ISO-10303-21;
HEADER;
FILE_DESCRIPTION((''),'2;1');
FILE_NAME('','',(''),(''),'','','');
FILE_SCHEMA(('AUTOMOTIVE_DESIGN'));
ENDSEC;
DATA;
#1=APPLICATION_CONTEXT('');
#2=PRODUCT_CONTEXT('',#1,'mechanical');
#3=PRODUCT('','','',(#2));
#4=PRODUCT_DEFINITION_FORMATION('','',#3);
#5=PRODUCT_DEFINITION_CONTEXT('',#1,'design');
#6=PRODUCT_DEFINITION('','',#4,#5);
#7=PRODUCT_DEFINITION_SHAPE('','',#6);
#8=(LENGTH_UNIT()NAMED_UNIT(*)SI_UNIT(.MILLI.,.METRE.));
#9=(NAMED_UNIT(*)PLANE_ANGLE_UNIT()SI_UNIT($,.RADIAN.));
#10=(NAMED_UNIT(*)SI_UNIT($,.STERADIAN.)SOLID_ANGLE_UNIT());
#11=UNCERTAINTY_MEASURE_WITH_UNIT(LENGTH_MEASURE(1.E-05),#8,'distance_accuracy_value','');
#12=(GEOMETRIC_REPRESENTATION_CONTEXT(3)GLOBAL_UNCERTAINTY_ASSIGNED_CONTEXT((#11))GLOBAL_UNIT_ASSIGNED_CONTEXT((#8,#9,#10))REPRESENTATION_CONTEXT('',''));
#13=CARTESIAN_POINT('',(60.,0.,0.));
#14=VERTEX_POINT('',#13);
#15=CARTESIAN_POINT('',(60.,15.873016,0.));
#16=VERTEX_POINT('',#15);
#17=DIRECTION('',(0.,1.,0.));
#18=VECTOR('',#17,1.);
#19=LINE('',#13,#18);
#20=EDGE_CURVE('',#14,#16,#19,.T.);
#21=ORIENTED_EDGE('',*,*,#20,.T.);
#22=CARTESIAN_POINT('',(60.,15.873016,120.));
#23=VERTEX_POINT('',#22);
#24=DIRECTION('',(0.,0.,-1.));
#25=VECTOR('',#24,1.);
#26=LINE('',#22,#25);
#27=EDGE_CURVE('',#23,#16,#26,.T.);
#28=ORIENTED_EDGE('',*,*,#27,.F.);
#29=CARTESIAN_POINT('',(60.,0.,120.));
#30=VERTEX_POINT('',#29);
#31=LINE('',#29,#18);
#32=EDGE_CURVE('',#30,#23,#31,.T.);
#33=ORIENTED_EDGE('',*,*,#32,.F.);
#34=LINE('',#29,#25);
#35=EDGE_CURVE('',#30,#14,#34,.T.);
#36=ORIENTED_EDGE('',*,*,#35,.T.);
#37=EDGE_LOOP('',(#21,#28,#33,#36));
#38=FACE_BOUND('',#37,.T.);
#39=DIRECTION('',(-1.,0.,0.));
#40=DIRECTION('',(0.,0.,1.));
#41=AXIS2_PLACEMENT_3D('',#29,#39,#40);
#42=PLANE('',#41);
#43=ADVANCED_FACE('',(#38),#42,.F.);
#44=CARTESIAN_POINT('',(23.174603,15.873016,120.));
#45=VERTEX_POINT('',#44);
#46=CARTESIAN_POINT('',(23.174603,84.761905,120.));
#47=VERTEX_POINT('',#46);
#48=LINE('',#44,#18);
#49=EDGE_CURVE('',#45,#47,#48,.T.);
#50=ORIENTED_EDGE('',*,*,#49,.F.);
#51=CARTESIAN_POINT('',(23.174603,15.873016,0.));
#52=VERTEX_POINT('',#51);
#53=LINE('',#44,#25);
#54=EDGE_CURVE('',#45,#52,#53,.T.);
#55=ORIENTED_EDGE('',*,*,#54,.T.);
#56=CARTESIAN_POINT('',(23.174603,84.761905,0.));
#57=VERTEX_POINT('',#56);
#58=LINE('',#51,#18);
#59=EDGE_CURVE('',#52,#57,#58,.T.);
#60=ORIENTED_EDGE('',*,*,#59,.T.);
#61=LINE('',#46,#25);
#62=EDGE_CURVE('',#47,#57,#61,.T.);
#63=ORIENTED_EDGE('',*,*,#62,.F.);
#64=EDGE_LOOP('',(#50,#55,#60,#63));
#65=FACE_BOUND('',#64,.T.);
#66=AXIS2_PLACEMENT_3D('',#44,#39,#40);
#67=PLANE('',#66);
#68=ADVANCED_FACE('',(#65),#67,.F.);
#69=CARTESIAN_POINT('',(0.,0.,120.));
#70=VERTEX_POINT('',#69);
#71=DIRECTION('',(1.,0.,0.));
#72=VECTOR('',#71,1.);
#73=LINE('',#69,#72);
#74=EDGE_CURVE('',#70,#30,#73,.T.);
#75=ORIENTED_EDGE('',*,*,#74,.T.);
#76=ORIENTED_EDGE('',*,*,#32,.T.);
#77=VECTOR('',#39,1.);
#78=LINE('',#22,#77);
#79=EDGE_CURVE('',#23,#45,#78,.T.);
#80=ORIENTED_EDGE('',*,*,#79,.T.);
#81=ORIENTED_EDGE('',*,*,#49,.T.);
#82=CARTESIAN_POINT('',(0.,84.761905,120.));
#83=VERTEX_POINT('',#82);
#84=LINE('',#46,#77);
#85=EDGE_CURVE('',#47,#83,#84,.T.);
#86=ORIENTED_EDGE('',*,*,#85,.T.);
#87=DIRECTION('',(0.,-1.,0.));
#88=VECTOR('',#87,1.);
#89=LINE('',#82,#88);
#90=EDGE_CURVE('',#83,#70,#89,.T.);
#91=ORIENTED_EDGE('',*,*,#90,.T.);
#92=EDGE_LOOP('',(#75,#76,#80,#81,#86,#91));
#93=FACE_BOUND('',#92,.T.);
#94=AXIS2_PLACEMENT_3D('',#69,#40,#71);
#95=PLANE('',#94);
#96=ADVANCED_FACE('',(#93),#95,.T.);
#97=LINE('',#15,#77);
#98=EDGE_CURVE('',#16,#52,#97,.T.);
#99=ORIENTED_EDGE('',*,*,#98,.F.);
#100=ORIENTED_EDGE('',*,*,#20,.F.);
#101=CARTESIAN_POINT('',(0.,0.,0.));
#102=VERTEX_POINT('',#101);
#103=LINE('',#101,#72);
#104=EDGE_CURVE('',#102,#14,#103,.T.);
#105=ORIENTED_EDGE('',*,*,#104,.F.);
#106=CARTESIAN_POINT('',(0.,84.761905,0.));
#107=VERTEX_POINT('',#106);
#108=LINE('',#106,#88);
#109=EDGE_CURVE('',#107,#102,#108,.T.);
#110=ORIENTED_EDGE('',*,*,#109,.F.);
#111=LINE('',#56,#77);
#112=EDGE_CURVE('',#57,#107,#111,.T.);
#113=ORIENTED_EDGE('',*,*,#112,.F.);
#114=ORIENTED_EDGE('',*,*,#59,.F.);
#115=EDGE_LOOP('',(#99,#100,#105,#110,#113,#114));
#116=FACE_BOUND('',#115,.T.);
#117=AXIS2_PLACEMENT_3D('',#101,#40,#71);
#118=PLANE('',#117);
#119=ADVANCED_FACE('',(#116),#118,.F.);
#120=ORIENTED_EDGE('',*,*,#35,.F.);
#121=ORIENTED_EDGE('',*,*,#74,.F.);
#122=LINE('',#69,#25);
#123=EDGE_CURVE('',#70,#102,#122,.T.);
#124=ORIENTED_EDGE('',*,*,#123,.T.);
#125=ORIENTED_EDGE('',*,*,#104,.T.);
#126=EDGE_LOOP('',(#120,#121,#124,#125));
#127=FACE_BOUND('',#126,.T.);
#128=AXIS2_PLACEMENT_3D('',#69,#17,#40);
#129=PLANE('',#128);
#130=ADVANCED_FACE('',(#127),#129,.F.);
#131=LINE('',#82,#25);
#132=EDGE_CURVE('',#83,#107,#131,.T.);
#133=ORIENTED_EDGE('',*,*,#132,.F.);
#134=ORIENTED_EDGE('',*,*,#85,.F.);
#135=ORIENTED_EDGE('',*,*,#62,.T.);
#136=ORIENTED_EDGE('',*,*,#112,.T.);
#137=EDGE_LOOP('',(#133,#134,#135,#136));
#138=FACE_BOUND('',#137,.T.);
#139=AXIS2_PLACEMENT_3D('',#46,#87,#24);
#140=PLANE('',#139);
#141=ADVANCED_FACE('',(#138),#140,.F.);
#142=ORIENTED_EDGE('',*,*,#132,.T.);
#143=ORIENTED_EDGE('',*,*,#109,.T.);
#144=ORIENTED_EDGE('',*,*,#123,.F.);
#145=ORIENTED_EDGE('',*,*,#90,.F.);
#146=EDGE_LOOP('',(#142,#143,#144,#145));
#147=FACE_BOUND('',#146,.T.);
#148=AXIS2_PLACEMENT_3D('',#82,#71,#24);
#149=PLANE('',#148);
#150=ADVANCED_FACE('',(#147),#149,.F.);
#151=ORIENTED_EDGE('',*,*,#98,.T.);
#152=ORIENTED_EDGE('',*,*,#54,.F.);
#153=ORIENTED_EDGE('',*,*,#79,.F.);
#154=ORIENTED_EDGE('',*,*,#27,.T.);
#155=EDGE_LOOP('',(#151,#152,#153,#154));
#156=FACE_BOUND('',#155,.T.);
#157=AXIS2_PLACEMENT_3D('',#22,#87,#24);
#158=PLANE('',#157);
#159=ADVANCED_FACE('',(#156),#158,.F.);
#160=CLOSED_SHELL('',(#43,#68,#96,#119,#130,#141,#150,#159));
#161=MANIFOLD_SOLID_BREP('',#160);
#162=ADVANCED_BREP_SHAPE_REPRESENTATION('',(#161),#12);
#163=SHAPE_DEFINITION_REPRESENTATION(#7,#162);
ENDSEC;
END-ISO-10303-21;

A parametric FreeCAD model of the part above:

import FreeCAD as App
import Part
import Sketcher

doc = App.newDocument("Part")
params = doc.addObject("Spreadsheet::Sheet", "Params")
for row, (alias, value) in enumerate([
    ("sketch1_width", "60 mm"),
    ("pad1_length", "120 mm"),
], start=1):
    params.set(f"A{row}", alias)
    params.set(f"B{row}", "=" + value)
    params.setAlias(f"B{row}", alias)

body = doc.addObject("PartDesign::Body", "Body")

sketch1 = body.newObject("Sketcher::SketchObject", "Sketch")
sketch1.AttachmentSupport = (doc.getObject("XY_Plane"), [""])
sketch1.MapMode = "FlatFace"
sketch1.addGeometry([
    Part.LineSegment(App.Vector(0, 0, 0), App.Vector(60, 0, 0)),
    Part.LineSegment(App.Vector(60, 0, 0), App.Vector(60, 16, 0)),
    Part.LineSegment(App.Vector(60, 16, 0), App.Vector(23, 16, 0)),
    Part.LineSegment(App.Vector(23, 16, 0), App.Vector(23, 85, 0)),
    Part.LineSegment(App.Vector(23, 85, 0), App.Vector(0, 85, 0)),
    Part.LineSegment(App.Vector(0, 85, 0), App.Vector(0, 0, 0)),
], False)
sketch1.addConstraint([
    Sketcher.Constraint("Coincident", 0, 2, 1, 1),
    Sketcher.Constraint("Coincident", 1, 2, 2, 1),
    Sketcher.Constraint("Coincident", 2, 2, 3, 1),
    Sketcher.Constraint("Coincident", 3, 2, 4, 1),
    Sketcher.Constraint("Coincident", 4, 2, 5, 1),
    Sketcher.Constraint("Coincident", 5, 2, 0, 1),
    Sketcher.Constraint("Horizontal", 0),
    Sketcher.Constraint("Vertical", 1),
    Sketcher.Constraint("Horizontal", 2),
    Sketcher.Constraint("Vertical", 3),
    Sketcher.Constraint("Horizontal", 4),
    Sketcher.Constraint("Vertical", 5),
    Sketcher.Constraint("Coincident", 5, 2, -1, 1),
    Sketcher.Constraint("DistanceX", 0, 1, 0, 2, 60.0),
    Sketcher.Constraint("DistanceY", 3, 1, 3, 2, 68.888889),
    Sketcher.Constraint("DistanceX", 2, 2, 2, 1, 36.825397),
    Sketcher.Constraint("DistanceY", 1, 1, 1, 2, 15.873016),
])
sketch1.setExpression("Constraints[13]", "Params.sketch1_width")
pad1 = body.newObject("PartDesign::Pad", "Pad")
pad1.Profile = sketch1
pad1.setExpression("Length", "Params.pad1_length")

doc.recompute()
